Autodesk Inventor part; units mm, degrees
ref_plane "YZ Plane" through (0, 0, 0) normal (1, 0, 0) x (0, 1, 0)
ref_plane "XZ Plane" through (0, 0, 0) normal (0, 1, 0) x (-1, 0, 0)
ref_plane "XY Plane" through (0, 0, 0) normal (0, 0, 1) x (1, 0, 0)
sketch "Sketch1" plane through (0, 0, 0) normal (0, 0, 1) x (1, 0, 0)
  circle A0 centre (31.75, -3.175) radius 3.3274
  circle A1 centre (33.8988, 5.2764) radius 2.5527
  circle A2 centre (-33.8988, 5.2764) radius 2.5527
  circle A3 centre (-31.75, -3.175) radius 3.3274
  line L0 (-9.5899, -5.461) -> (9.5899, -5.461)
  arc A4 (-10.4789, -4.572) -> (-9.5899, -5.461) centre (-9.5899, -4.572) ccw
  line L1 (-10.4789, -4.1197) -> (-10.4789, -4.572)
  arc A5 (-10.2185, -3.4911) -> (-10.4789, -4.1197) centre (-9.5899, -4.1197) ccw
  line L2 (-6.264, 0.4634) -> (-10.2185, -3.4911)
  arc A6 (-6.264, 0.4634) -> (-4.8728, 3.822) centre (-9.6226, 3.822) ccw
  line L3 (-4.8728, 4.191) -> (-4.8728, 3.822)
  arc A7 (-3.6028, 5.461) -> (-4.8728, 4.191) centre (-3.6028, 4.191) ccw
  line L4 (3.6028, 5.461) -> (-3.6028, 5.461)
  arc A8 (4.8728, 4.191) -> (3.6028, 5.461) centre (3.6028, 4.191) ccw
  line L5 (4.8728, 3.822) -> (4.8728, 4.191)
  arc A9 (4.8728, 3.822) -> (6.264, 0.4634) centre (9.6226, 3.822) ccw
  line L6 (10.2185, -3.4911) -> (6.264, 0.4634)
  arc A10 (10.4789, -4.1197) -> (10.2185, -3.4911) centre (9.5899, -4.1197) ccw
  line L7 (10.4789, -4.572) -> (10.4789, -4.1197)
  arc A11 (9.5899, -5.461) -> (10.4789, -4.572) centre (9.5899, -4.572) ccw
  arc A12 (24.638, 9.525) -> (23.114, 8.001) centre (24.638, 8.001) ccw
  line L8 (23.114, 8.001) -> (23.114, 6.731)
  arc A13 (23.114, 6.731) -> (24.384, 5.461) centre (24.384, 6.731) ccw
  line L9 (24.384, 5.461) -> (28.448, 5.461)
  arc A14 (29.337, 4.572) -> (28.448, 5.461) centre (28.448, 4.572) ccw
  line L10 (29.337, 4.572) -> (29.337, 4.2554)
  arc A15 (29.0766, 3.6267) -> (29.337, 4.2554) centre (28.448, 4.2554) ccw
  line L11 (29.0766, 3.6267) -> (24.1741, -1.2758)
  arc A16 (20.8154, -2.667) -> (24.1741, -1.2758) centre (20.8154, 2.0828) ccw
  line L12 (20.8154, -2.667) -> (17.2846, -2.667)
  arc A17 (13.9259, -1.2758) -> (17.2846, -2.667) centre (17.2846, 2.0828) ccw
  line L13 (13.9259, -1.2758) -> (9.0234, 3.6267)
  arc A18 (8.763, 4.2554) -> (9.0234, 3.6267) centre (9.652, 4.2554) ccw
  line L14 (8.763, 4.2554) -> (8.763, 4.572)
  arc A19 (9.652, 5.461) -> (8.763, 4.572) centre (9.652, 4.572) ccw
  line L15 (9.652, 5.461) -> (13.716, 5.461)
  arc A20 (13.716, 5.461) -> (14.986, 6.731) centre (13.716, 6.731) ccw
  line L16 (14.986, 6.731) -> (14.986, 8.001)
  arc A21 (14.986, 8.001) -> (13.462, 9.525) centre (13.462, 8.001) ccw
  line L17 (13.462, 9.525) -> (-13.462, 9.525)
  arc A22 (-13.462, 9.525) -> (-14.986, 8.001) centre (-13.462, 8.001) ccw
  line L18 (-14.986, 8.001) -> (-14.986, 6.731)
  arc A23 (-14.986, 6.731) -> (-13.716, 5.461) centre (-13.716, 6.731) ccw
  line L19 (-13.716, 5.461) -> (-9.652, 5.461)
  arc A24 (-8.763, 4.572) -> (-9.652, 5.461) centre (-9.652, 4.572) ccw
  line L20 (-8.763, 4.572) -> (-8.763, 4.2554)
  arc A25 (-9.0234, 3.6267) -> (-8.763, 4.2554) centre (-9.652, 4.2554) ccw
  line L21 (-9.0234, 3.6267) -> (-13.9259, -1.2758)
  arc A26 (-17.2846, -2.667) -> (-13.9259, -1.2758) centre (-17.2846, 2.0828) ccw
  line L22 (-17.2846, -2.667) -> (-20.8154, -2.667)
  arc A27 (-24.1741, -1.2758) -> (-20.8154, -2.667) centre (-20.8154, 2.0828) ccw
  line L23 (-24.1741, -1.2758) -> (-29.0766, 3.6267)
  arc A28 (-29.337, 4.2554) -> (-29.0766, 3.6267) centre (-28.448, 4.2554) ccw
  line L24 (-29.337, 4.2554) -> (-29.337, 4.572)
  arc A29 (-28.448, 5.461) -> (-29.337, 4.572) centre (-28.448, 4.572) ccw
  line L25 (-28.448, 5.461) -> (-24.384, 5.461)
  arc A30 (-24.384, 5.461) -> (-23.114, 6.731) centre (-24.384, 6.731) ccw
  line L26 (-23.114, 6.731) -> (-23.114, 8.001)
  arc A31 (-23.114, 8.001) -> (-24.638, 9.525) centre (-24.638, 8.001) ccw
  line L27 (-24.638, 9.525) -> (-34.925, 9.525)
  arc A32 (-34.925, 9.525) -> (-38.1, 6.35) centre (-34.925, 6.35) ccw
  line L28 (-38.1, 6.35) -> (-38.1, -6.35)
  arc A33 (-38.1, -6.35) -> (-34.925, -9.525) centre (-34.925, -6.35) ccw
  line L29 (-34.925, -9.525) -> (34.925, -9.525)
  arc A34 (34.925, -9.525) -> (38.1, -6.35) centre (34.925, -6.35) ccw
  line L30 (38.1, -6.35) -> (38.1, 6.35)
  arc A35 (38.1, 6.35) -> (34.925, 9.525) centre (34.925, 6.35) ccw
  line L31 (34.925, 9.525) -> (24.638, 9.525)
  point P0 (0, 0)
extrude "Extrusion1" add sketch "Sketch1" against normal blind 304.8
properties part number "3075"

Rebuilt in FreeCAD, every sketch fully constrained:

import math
import FreeCAD as App
import Part
import Sketcher
from FreeCAD import Vector
Q = App.Units.Quantity

doc = App.newDocument("Part")
params = doc.addObject("Spreadsheet::Sheet", "Params")
for row, (alias, value) in enumerate([
    ("sketch1_radius", "0.06 in"),
    ("sketch1_radius2", "0.05 in"),
    ("sketch1_diameter", "0.262 in"),
    ("sketch1_diameter2", "0.201 in"),
    ("sketch1_height", "0.5 in"),
    ("pad1_length", "12 in"),
], start=1):
    params.set(f"A{row}", alias)
    params.set(f"B{row}", "=" + value)
    params.setAlias(f"B{row}", alias)

body = doc.addObject("PartDesign::Body", "Body")

# Sketch on XY plane
sketch1 = body.newObject("Sketcher::SketchObject", "Sketch")
sketch1.AttachmentSupport = (doc.getObject("XY_Plane"), [""])
sketch1.MapMode = "FlatFace"
sketch1.addGeometry([
    Part.LineSegment(Vector(34.925, 9.525, 0), Vector(24.638, 9.525, 0)),  # 0
    Part.ArcOfCircle(Part.Circle(Vector(24.638, 8.001, 0), Vector(0, 0, 1), 1.524), math.radians(90), math.radians(180)),  # 1
    Part.LineSegment(Vector(23.114, 8.001, 0), Vector(23.114, 6.731, 0)),  # 2
    Part.ArcOfCircle(Part.Circle(Vector(24.384, 6.731, 0), Vector(0, 0, 1), 1.27), math.radians(180), math.radians(270)),  # 3
    Part.LineSegment(Vector(24.384, 5.461, 0), Vector(28.448, 5.461, 0)),  # 4
    Part.ArcOfCircle(Part.Circle(Vector(28.448, 4.572, 0), Vector(0, 0, 1), 0.889), math.radians(0), math.radians(90)),  # 5
    Part.LineSegment(Vector(29.337, 4.572, 0), Vector(29.337, 4.2554, 0)),  # 6
    Part.ArcOfCircle(Part.Circle(Vector(28.448, 4.2554, 0), Vector(0, 0, 1), 0.889045), math.radians(-45.004557), math.radians(0)),  # 7
    Part.LineSegment(Vector(29.0766, 3.6267, 0), Vector(24.1741, -1.2758, 0)),  # 8
    Part.ArcOfCircle(Part.Circle(Vector(20.8154, 2.0828, 0), Vector(0, 0, 1), 4.7498), math.radians(-90), math.radians(-44.999147)),  # 9
    Part.LineSegment(Vector(20.8154, -2.667, 0), Vector(17.2846, -2.667, 0)),  # 10
    Part.ArcOfCircle(Part.Circle(Vector(17.2846, 2.0828, 0), Vector(0, 0, 1), 4.749848), math.radians(-135.000853), math.radians(-90)),  # 11
    Part.LineSegment(Vector(13.9259, -1.2758, 0), Vector(9.0234, 3.6267, 0)),  # 12
    Part.ArcOfCircle(Part.Circle(Vector(9.652, 4.2554, 0), Vector(0, 0, 1), 0.889), math.radians(180), math.radians(225.004557)),  # 13
    Part.LineSegment(Vector(8.763, 4.2554, 0), Vector(8.763, 4.572, 0)),  # 14
    Part.ArcOfCircle(Part.Circle(Vector(9.652, 4.572, 0), Vector(0, 0, 1), 0.889), math.radians(90), math.radians(180)),  # 15
    Part.LineSegment(Vector(9.652, 5.461, 0), Vector(13.716, 5.461, 0)),  # 16
    Part.ArcOfCircle(Part.Circle(Vector(13.716, 6.731, 0), Vector(0, 0, 1), 1.27), math.radians(-90), math.radians(0)),  # 17
    Part.LineSegment(Vector(14.986, 6.731, 0), Vector(14.986, 8.001, 0)),  # 18
    Part.ArcOfCircle(Part.Circle(Vector(13.462, 8.001, 0), Vector(0, 0, 1), 1.524), math.radians(0), math.radians(90)),  # 19
    Part.LineSegment(Vector(13.462, 9.525, 0), Vector(-13.462, 9.525, 0)),  # 20
    Part.ArcOfCircle(Part.Circle(Vector(-13.462, 8.001, 0), Vector(0, 0, 1), 1.524), math.radians(90), math.radians(180)),  # 21
    Part.LineSegment(Vector(-14.986, 8.001, 0), Vector(-14.986, 6.731, 0)),  # 22
    Part.ArcOfCircle(Part.Circle(Vector(-13.716, 6.731, 0), Vector(0, 0, 1), 1.27), math.radians(180), math.radians(270)),  # 23
    Part.LineSegment(Vector(-13.716, 5.461, 0), Vector(-9.652, 5.461, 0)),  # 24
    Part.ArcOfCircle(Part.Circle(Vector(-9.652, 4.572, 0), Vector(0, 0, 1), 0.889), math.radians(0), math.radians(90)),  # 25
    Part.LineSegment(Vector(-8.763, 4.572, 0), Vector(-8.763, 4.2554, 0)),  # 26
    Part.ArcOfCircle(Part.Circle(Vector(-9.652, 4.2554, 0), Vector(0, 0, 1), 0.889045), math.radians(-45.004557), math.radians(0)),  # 27
    Part.LineSegment(Vector(-9.0234, 3.6267, 0), Vector(-13.9259, -1.2758, 0)),  # 28
    Part.ArcOfCircle(Part.Circle(Vector(-17.2846, 2.0828, 0), Vector(0, 0, 1), 4.7498), math.radians(-90), math.radians(-44.999147)),  # 29
    Part.LineSegment(Vector(-17.2846, -2.667, 0), Vector(-20.8154, -2.667, 0)),  # 30
    Part.ArcOfCircle(Part.Circle(Vector(-20.8154, 2.0828, 0), Vector(0, 0, 1), 4.749848), math.radians(-135.000853), math.radians(-90)),  # 31
    Part.LineSegment(Vector(-24.1741, -1.2758, 0), Vector(-29.0766, 3.6267, 0)),  # 32
    Part.ArcOfCircle(Part.Circle(Vector(-28.448, 4.2554, 0), Vector(0, 0, 1), 0.889), math.radians(180), math.radians(225.004557)),  # 33
    Part.LineSegment(Vector(-29.337, 4.2554, 0), Vector(-29.337, 4.572, 0)),  # 34
    Part.ArcOfCircle(Part.Circle(Vector(-28.448, 4.572, 0), Vector(0, 0, 1), 0.889), math.radians(90), math.radians(180)),  # 35
    Part.LineSegment(Vector(-28.448, 5.461, 0), Vector(-24.384, 5.461, 0)),  # 36
    Part.ArcOfCircle(Part.Circle(Vector(-24.384, 6.731, 0), Vector(0, 0, 1), 1.27), math.radians(-90), math.radians(0)),  # 37
    Part.LineSegment(Vector(-23.114, 6.731, 0), Vector(-23.114, 8.001, 0)),  # 38
    Part.ArcOfCircle(Part.Circle(Vector(-24.638, 8.001, 0), Vector(0, 0, 1), 1.524), math.radians(0), math.radians(90)),  # 39
    Part.LineSegment(Vector(-24.638, 9.525, 0), Vector(-34.925, 9.525, 0)),  # 40
    Part.ArcOfCircle(Part.Circle(Vector(-34.925, 6.35, 0), Vector(0, 0, 1), 3.175), math.radians(90), math.radians(180)),  # 41
    Part.LineSegment(Vector(-38.1, 6.35, 0), Vector(-38.1, -6.35, 0)),  # 42
    Part.ArcOfCircle(Part.Circle(Vector(-34.925, -6.35, 0), Vector(0, 0, 1), 3.175), math.radians(180), math.radians(270)),  # 43
    Part.LineSegment(Vector(-34.925, -9.525, 0), Vector(34.925, -9.525, 0)),  # 44
    Part.ArcOfCircle(Part.Circle(Vector(34.925, -6.35, 0), Vector(0, 0, 1), 3.175), math.radians(-90), math.radians(0)),  # 45
    Part.LineSegment(Vector(38.1, -6.35, 0), Vector(38.1, 6.35, 0)),  # 46
    Part.ArcOfCircle(Part.Circle(Vector(34.925, 6.35, 0), Vector(0, 0, 1), 3.175), math.radians(0), math.radians(90)),  # 47
    Part.Circle(Vector(-31.75, -3.175, 0), Vector(0, 0, 1), 3.3274),  # 48
    Part.Circle(Vector(31.75, -3.175, 0), Vector(0, 0, 1), 3.3274),  # 49
    Part.Circle(Vector(-33.8988, 5.2764, 0), Vector(0, 0, 1), 2.5527),  # 50
    Part.LineSegment(Vector(9.5899, -5.461, 0), Vector(-9.5899, -5.461, 0)),  # 51
    Part.ArcOfCircle(Part.Circle(Vector(-9.5899, -4.572, 0), Vector(0, 0, 1), 0.889), math.radians(180), math.radians(270)),  # 52
    Part.LineSegment(Vector(-10.4789, -4.572, 0), Vector(-10.4789, -4.1197, 0)),  # 53
    Part.ArcOfCircle(Part.Circle(Vector(-9.5899, -4.1197, 0), Vector(0, 0, 1), 0.888975), math.radians(135), math.radians(180)),  # 54
    Part.LineSegment(Vector(-10.2185, -3.4911, 0), Vector(-6.264, 0.4634, 0)),  # 55
    Part.ArcOfCircle(Part.Circle(Vector(-9.6226, 3.822, 0), Vector(0, 0, 1), 4.749778), math.radians(-45), math.radians(0)),  # 56
    Part.LineSegment(Vector(-4.8728, 3.822, 0), Vector(-4.8728, 4.191, 0)),  # 57
    Part.ArcOfCircle(Part.Circle(Vector(-3.6028, 4.191, 0), Vector(0, 0, 1), 1.27), math.radians(90), math.radians(180)),  # 58
    Part.LineSegment(Vector(-3.6028, 5.461, 0), Vector(3.6028, 5.461, 0)),  # 59
    Part.ArcOfCircle(Part.Circle(Vector(3.6028, 4.191, 0), Vector(0, 0, 1), 1.27), math.radians(0), math.radians(90)),  # 60
    Part.LineSegment(Vector(4.8728, 4.191, 0), Vector(4.8728, 3.822, 0)),  # 61
    Part.ArcOfCircle(Part.Circle(Vector(9.6226, 3.822, 0), Vector(0, 0, 1), 4.7498), math.radians(180), math.radians(225)),  # 62
    Part.LineSegment(Vector(6.264, 0.4634, 0), Vector(10.2185, -3.4911, 0)),  # 63
    Part.ArcOfCircle(Part.Circle(Vector(9.5899, -4.1197, 0), Vector(0, 0, 1), 0.889), math.radians(0), math.radians(45)),  # 64
    Part.LineSegment(Vector(10.4789, -4.1197, 0), Vector(10.4789, -4.572, 0)),  # 65
    Part.ArcOfCircle(Part.Circle(Vector(9.5899, -4.572, 0), Vector(0, 0, 1), 0.889), math.radians(-90), math.radians(0)),  # 66
    Part.Circle(Vector(33.8988, 5.2764, 0), Vector(0, 0, 1), 2.5527),  # 67
], False)
sketch1.addConstraint([
    Sketcher.Constraint("Tangent", 0, 2, 1, 1),
    Sketcher.Constraint("Tangent", 1, 2, 2, 1),
    Sketcher.Constraint("Tangent", 2, 2, 3, 1),
    Sketcher.Constraint("Tangent", 3, 2, 4, 1),
    Sketcher.Constraint("Tangent", 4, 2, 5, 2),
    Sketcher.Constraint("Tangent", 5, 1, 6, 1),
    Sketcher.Constraint("Tangent", 6, 2, 7, 2),
    Sketcher.Constraint("Tangent", 7, 1, 8, 1),
    Sketcher.Constraint("Tangent", 8, 2, 9, 2),
    Sketcher.Constraint("Tangent", 9, 1, 10, 1),
    Sketcher.Constraint("Tangent", 10, 2, 11, 2),
    Sketcher.Constraint("Tangent", 11, 1, 12, 1),
    Sketcher.Constraint("Tangent", 12, 2, 13, 2),
    Sketcher.Constraint("Tangent", 13, 1, 14, 1),
    Sketcher.Constraint("Tangent", 14, 2, 15, 2),
    Sketcher.Constraint("Tangent", 15, 1, 16, 1),
    Sketcher.Constraint("Tangent", 16, 2, 17, 1),
    Sketcher.Constraint("Tangent", 17, 2, 18, 1),
    Sketcher.Constraint("Tangent", 18, 2, 19, 1),
    Sketcher.Constraint("Tangent", 19, 2, 20, 1),
    Sketcher.Constraint("Tangent", 20, 2, 21, 1),
    Sketcher.Constraint("Tangent", 21, 2, 22, 1),
    Sketcher.Constraint("Tangent", 22, 2, 23, 1),
    Sketcher.Constraint("Tangent", 23, 2, 24, 1),
    Sketcher.Constraint("Tangent", 24, 2, 25, 2),
    Sketcher.Constraint("Tangent", 25, 1, 26, 1),
    Sketcher.Constraint("Tangent", 26, 2, 27, 2),
    Sketcher.Constraint("Tangent", 27, 1, 28, 1),
    Sketcher.Constraint("Tangent", 28, 2, 29, 2),
    Sketcher.Constraint("Tangent", 29, 1, 30, 1),
    Sketcher.Constraint("Tangent", 30, 2, 31, 2),
    Sketcher.Constraint("Tangent", 31, 1, 32, 1),
    Sketcher.Constraint("Tangent", 32, 2, 33, 2),
    Sketcher.Constraint("Tangent", 33, 1, 34, 1),
    Sketcher.Constraint("Tangent", 34, 2, 35, 2),
    Sketcher.Constraint("Tangent", 35, 1, 36, 1),
    Sketcher.Constraint("Tangent", 36, 2, 37, 1),
    Sketcher.Constraint("Tangent", 37, 2, 38, 1),
    Sketcher.Constraint("Tangent", 38, 2, 39, 1),
    Sketcher.Constraint("Tangent", 39, 2, 40, 1),
    Sketcher.Constraint("Tangent", 40, 2, 41, 1),
    Sketcher.Constraint("Tangent", 41, 2, 42, 1),
    Sketcher.Constraint("Tangent", 42, 2, 43, 1),
    Sketcher.Constraint("Tangent", 43, 2, 44, 1),
    Sketcher.Constraint("Tangent", 44, 2, 45, 1),
    Sketcher.Constraint("Tangent", 45, 2, 46, 1),
    Sketcher.Constraint("Tangent", 46, 2, 47, 1),
    Sketcher.Constraint("Tangent", 47, 2, 0, 1),
    Sketcher.Constraint("Tangent", 51, 2, 52, 2),
    Sketcher.Constraint("Tangent", 52, 1, 53, 1),
    Sketcher.Constraint("Tangent", 53, 2, 54, 2),
    Sketcher.Constraint("Tangent", 54, 1, 55, 1),
    Sketcher.Constraint("Tangent", 55, 2, 56, 1),
    Sketcher.Constraint("Tangent", 56, 2, 57, 1),
    Sketcher.Constraint("Tangent", 57, 2, 58, 2),
    Sketcher.Constraint("Tangent", 58, 1, 59, 1),
    Sketcher.Constraint("Tangent", 59, 2, 60, 2),
    Sketcher.Constraint("Tangent", 60, 1, 61, 1),
    Sketcher.Constraint("Tangent", 61, 2, 62, 1),
    Sketcher.Constraint("Tangent", 62, 2, 63, 1),
    Sketcher.Constraint("Tangent", 63, 2, 64, 2),
    Sketcher.Constraint("Tangent", 64, 1, 65, 1),
    Sketcher.Constraint("Tangent", 65, 2, 66, 2),
    Sketcher.Constraint("Tangent", 66, 1, 51, 1),
    Sketcher.Constraint("Horizontal", 0),
    Sketcher.Constraint("Vertical", 2),
    Sketcher.Constraint("Horizontal", 4),
    Sketcher.Constraint("Vertical", 6),
    Sketcher.Constraint("Horizontal", 10),
    Sketcher.Constraint("Vertical", 14),
    Sketcher.Constraint("Horizontal", 16),
    Sketcher.Constraint("Vertical", 18),
    Sketcher.Constraint("Horizontal", 20),
    Sketcher.Constraint("Vertical", 22),
    Sketcher.Constraint("Horizontal", 24),
    Sketcher.Constraint("Vertical", 26),
    Sketcher.Constraint("Horizontal", 30),
    Sketcher.Constraint("Vertical", 34),
    Sketcher.Constraint("Horizontal", 36),
    Sketcher.Constraint("Vertical", 38),
    Sketcher.Constraint("Horizontal", 40),
    Sketcher.Constraint("Vertical", 42),
    Sketcher.Constraint("Horizontal", 44),
    Sketcher.Constraint("Vertical", 46),
    Sketcher.Constraint("Horizontal", 51),
    Sketcher.Constraint("Vertical", 53),
    Sketcher.Constraint("Vertical", 57),
    Sketcher.Constraint("Horizontal", 59),
    Sketcher.Constraint("Vertical", 61),
    Sketcher.Constraint("Vertical", 65),
    Sketcher.Constraint("Equal", 5, 7),
    Sketcher.Constraint("Equal", 9, 11),
    Sketcher.Constraint("Equal", 7, 13),
    Sketcher.Constraint("Equal", 13, 15),
    Sketcher.Constraint("Equal", 3, 17),
    Sketcher.Constraint("Equal", 1, 19),
    Sketcher.Constraint("Equal", 19, 21),
    Sketcher.Constraint("Equal", 17, 23),
    Sketcher.Constraint("Equal", 15, 25),
    Sketcher.Constraint("Equal", 25, 27),
    Sketcher.Constraint("Equal", 11, 29),
    Sketcher.Constraint("Equal", 29, 31),
    Sketcher.Constraint("Equal", 27, 33),
    Sketcher.Constraint("Equal", 33, 35),
    Sketcher.Constraint("Equal", 23, 37),
    Sketcher.Constraint("Equal", 21, 39),
    Sketcher.Constraint("Equal", 41, 43),
    Sketcher.Constraint("Equal", 43, 45),
    Sketcher.Constraint("Equal", 45, 47),
    Sketcher.Constraint("Equal", 48, 49),
    Sketcher.Constraint("Equal", 35, 52),
    Sketcher.Constraint("Equal", 52, 54),
    Sketcher.Constraint("Equal", 31, 56),
    Sketcher.Constraint("Equal", 37, 58),
    Sketcher.Constraint("Equal", 58, 60),
    Sketcher.Constraint("Equal", 56, 62),
    Sketcher.Constraint("Equal", 54, 64),
    Sketcher.Constraint("Equal", 64, 66),
    Sketcher.Constraint("Equal", 50, 67),
    Sketcher.Constraint("Symmetric", 41, 3, 45, 3, -1, 1),
    Sketcher.Constraint("Symmetric", 17, 3, 23, 3, -2),
    Sketcher.Constraint("Symmetric", 13, 3, 27, 3, -2),
    Sketcher.Constraint("Symmetric", 11, 3, 29, 3, -2),
    Sketcher.Constraint("Symmetric", 7, 3, 33, 3, -2),
    Sketcher.Constraint("Symmetric", 3, 3, 37, 3, -2),
    Sketcher.Constraint("Symmetric", 48, 3, 49, 3, -2),
    Sketcher.Constraint("Symmetric", 56, 3, 62, 3, -2),
    Sketcher.Constraint("Symmetric", 54, 3, 64, 3, -2),
    Sketcher.Constraint("Symmetric", 50, 3, 67, 3, -2),
    Sketcher.Constraint("Perpendicular", 8, 12),
    Sketcher.Constraint("Perpendicular", 12, 28),
    Sketcher.Constraint("Perpendicular", 28, 32),
    Sketcher.Constraint("Perpendicular", 32, 55),
    Sketcher.Constraint("Horizontal", 7, 3, 13, 3),
    Sketcher.Constraint("Horizontal", 5, 3, 15, 3),
    Sketcher.Constraint("Horizontal", 1, 3, 19, 3),
    Sketcher.Constraint("Horizontal", 21, 3, 39, 3),
    Sketcher.Constraint("Horizontal", 36, 2, 58, 1),
    Sketcher.Constraint("Equal", 4, 16),
    Sketcher.Constraint("Radius", 1, Q("0.06 in")),
    Sketcher.Constraint("Radius", 3, Q("0.05 in")),
    Sketcher.Constraint("Diameter", 48, Q("0.262 in")),
    Sketcher.Constraint("Diameter", 50, Q("0.201 in")),
    Sketcher.Constraint("DistanceY", 42, 2, 42, 1, Q("0.5 in")),
    Sketcher.Constraint("Radius", 5, Q("0.035 in")),
    Sketcher.Constraint("Radius", 9, Q("0.187 in")),
    Sketcher.Constraint("Radius", 41, Q("0.125 in")),
    Sketcher.Constraint("DistanceX", 4, 1, 4, 2, Q("0.16 in")),
    Sketcher.Constraint("DistanceX", 20, 2, 20, 1, Q("1.06 in")),
    Sketcher.Constraint("DistanceX", 44, 1, 44, 2, Q("2.75 in")),
    Sketcher.Constraint("DistanceY", 2, 2, 2, 1, Q("0.05 in")),
    Sketcher.Constraint("DistanceX", 0, 2, 0, 1, Q("0.405 in")),
    Sketcher.Constraint("DistanceX", 10, 2, 10, 1, Q("0.139 in")),
    Sketcher.Constraint("DistanceX", 48, 3, -1, 1, Q("1.25 in")),
    Sketcher.Constraint("DistanceY", 52, 3, -1, 1, Q("0.18 in")),
    Sketcher.Constraint("DistanceX", 51, 2, 51, 1, Q("0.7551 in")),
    Sketcher.Constraint("DistanceY", 53, 1, 53, 2, Q("0.0178 in")),
    Sketcher.Constraint("DistanceY", -1, 1, 9, 3, Q("0.082 in")),
    Sketcher.Constraint("DistanceY", 48, 3, -1, 1, Q("0.125 in")),
    Sketcher.Constraint("DistanceX", 59, 1, 59, 2, Q("7.2056 mm")),
    Sketcher.Constraint("DistanceX", 50, 3, -1, 1, Q("1.3346 in")),
    Sketcher.Constraint("DistanceY", -1, 1, 50, 3, Q("5.2764 mm")),
])
sketch1.setExpression("Constraints[139]", "Params.sketch1_radius")
sketch1.setExpression("Constraints[140]", "Params.sketch1_radius2")
sketch1.setExpression("Constraints[141]", "Params.sketch1_diameter")
sketch1.setExpression("Constraints[142]", "Params.sketch1_diameter2")
sketch1.setExpression("Constraints[143]", "Params.sketch1_height")
pad1 = body.newObject("PartDesign::Pad", "Pad")
pad1.Profile = sketch1
pad1.setExpression("Length", "Params.pad1_length")
pad1.Reversed = True

doc.recompute()
